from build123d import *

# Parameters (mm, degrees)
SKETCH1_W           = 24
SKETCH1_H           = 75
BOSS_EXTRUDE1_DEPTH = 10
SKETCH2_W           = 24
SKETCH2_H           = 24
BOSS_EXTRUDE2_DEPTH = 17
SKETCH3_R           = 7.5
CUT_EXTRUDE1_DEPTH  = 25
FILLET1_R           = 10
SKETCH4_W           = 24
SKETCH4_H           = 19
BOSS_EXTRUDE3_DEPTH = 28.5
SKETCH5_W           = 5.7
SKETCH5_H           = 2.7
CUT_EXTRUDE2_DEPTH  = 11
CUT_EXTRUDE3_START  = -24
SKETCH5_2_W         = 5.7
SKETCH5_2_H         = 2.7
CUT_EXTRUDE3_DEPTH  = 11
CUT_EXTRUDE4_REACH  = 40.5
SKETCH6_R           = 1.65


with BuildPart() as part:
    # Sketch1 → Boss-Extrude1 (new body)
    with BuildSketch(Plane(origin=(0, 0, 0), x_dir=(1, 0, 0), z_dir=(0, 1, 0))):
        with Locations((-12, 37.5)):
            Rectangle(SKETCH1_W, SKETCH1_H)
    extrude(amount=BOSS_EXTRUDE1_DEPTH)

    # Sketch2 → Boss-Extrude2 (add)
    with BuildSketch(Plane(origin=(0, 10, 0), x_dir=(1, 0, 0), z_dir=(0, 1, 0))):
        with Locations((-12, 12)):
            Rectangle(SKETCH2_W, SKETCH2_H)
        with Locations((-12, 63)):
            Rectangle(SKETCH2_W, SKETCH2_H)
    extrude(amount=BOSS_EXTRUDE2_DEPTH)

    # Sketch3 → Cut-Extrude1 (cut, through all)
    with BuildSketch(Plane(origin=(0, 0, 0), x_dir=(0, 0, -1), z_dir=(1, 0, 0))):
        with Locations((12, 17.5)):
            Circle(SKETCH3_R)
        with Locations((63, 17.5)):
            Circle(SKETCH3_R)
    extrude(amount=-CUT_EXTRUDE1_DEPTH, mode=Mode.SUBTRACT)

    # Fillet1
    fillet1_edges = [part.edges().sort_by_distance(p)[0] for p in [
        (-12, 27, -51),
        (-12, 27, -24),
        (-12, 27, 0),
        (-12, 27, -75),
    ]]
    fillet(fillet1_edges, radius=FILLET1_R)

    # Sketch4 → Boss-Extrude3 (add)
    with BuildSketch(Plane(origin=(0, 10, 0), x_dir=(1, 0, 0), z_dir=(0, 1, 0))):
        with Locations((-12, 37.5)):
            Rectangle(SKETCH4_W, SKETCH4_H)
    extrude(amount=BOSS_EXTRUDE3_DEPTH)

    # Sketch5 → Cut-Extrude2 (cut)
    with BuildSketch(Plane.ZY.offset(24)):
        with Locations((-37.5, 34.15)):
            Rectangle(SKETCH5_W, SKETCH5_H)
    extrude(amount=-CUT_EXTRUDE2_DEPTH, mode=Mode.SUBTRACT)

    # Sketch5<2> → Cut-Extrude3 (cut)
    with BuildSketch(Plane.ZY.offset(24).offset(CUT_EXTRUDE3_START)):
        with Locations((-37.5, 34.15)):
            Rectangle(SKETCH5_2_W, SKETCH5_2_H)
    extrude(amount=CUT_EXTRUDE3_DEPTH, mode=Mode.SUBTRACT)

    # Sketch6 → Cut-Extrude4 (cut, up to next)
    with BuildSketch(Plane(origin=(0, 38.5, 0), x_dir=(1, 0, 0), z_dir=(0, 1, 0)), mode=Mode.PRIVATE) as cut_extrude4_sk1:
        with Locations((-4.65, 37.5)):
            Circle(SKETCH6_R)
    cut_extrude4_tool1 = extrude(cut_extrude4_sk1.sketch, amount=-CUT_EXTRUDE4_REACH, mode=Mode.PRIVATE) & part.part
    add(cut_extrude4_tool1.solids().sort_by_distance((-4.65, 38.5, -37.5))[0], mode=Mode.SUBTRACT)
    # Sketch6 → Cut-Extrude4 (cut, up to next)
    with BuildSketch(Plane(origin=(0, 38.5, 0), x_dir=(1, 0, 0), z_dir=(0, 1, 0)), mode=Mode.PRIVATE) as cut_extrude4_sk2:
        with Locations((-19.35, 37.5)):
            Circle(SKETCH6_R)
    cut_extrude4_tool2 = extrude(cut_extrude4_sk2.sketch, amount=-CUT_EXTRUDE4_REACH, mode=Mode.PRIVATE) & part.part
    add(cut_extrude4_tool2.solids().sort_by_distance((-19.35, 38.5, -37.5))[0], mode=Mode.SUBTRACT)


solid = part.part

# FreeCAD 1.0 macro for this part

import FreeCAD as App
import Part
import Sketcher
from FreeCAD import Vector


def edges_at(feature, points):
    """Names of the edges that pass closest to the given points."""
    edges = feature.Shape.Edges
    near = lambda p: min(range(len(edges)), key=lambda i: edges[i].distToShape(Part.Vertex(*p))[0])
    return sorted({f"Edge{near(p) + 1}" for p in points})

doc = App.newDocument("Part")
body = doc.addObject("PartDesign::Body", "Body")

# Sketch on XZ plane
sketch1 = body.newObject("Sketcher::SketchObject", "Sketch")
sketch1.AttachmentSupport = (doc.getObject("XZ_Plane"), [""])
sketch1.MapMode = "FlatFace"
sketch1.addGeometry(Part.LineSegment(Vector(-24, -75, 0), Vector(-24, 0, 0)), False)
sketch1.addGeometry(Part.LineSegment(Vector(-24, 0, 0), Vector(0, 0, 0)), False)
sketch1.addGeometry(Part.LineSegment(Vector(0, 0, 0), Vector(0, -75, 0)), False)
sketch1.addGeometry(Part.LineSegment(Vector(0, -75, 0), Vector(-24, -75, 0)), False)
sketch1.addConstraint(Sketcher.Constraint("Coincident", 0, 2, 1, 1))
sketch1.addConstraint(Sketcher.Constraint("Coincident", 1, 2, 2, 1))
sketch1.addConstraint(Sketcher.Constraint("Coincident", 2, 2, 3, 1))
sketch1.addConstraint(Sketcher.Constraint("Coincident", 3, 2, 0, 1))
sketch1.addConstraint(Sketcher.Constraint("Vertical", 0))
sketch1.addConstraint(Sketcher.Constraint("Horizontal", 1))
sketch1.addConstraint(Sketcher.Constraint("Vertical", 2))
sketch1.addConstraint(Sketcher.Constraint("Horizontal", 3))
sketch1.addConstraint(Sketcher.Constraint("Coincident", 1, 2, -1, 1))
sketch1.addConstraint(Sketcher.Constraint("DistanceX", 1, 1, 1, 2, 24.0))
sketch1.addConstraint(Sketcher.Constraint("DistanceY", 0, 1, 0, 2, 75.0))
pad1 = body.newObject("PartDesign::Pad", "Pad")
pad1.Profile = sketch1
pad1.Length = 10
pad1.Reversed = True

# Sketch on XZ plane
sketch2 = body.newObject("Sketcher::SketchObject", "Sketch001")
sketch2.AttachmentSupport = (doc.getObject("XZ_Plane"), [""])
sketch2.MapMode = "FlatFace"
sketch2.AttachmentOffset = App.Placement(Vector(0, 0, -10), App.Rotation())
sketch2.addGeometry(Part.LineSegment(Vector(-24, -24, 0), Vector(-24, 0, 0)), False)
sketch2.addGeometry(Part.LineSegment(Vector(-24, 0, 0), Vector(0, 0, 0)), False)
sketch2.addGeometry(Part.LineSegment(Vector(0, 0, 0), Vector(0, -24, 0)), False)
sketch2.addGeometry(Part.LineSegment(Vector(0, -24, 0), Vector(-24, -24, 0)), False)
sketch2.addGeometry(Part.LineSegment(Vector(-24, -75, 0), Vector(-24, -51, 0)), False)
sketch2.addGeometry(Part.LineSegment(Vector(-24, -51, 0), Vector(0, -51, 0)), False)
sketch2.addGeometry(Part.LineSegment(Vector(0, -51, 0), Vector(0, -75, 0)), False)
sketch2.addGeometry(Part.LineSegment(Vector(0, -75, 0), Vector(-24, -75, 0)), False)
sketch2.addConstraint(Sketcher.Constraint("Coincident", 0, 2, 1, 1))
sketch2.addConstraint(Sketcher.Constraint("Coincident", 1, 2, 2, 1))
sketch2.addConstraint(Sketcher.Constraint("Coincident", 2, 2, 3, 1))
sketch2.addConstraint(Sketcher.Constraint("Coincident", 3, 2, 0, 1))
sketch2.addConstraint(Sketcher.Constraint("Coincident", 4, 2, 5, 1))
sketch2.addConstraint(Sketcher.Constraint("Coincident", 5, 2, 6, 1))
sketch2.addConstraint(Sketcher.Constraint("Coincident", 6, 2, 7, 1))
sketch2.addConstraint(Sketcher.Constraint("Coincident", 7, 2, 4, 1))
sketch2.addConstraint(Sketcher.Constraint("Vertical", 0))
sketch2.addConstraint(Sketcher.Constraint("Horizontal", 1))
sketch2.addConstraint(Sketcher.Constraint("Vertical", 2))
sketch2.addConstraint(Sketcher.Constraint("Horizontal", 3))
sketch2.addConstraint(Sketcher.Constraint("Vertical", 4))
sketch2.addConstraint(Sketcher.Constraint("Horizontal", 5))
sketch2.addConstraint(Sketcher.Constraint("Vertical", 6))
sketch2.addConstraint(Sketcher.Constraint("Horizontal", 7))
sketch2.addConstraint(Sketcher.Constraint("Coincident", 1, 2, -1, 1))
sketch2.addConstraint(Sketcher.Constraint("PointOnObject", 5, 2, -2))
sketch2.addConstraint(Sketcher.Constraint("Vertical", 3, 2, 4, 2))
sketch2.addConstraint(Sketcher.Constraint("Equal", 7, 0))
sketch2.addConstraint(Sketcher.Constraint("Equal", 2, 4))
sketch2.addConstraint(Sketcher.Constraint("DistanceX", 1, 1, 1, 2, 24.0))
sketch2.addConstraint(Sketcher.Constraint("DistanceY", 4, 2, -1, 1, 51.0))
pad2 = body.newObject("PartDesign::Pad", "Pad001")
pad2.Profile = sketch2
pad2.Length = 17
pad2.Reversed = True

# Sketch on YZ plane
sketch3 = body.newObject("Sketcher::SketchObject", "Sketch002")
sketch3.AttachmentSupport = (doc.getObject("YZ_Plane"), [""])
sketch3.MapMode = "FlatFace"
sketch3.addGeometry(Part.Circle(Vector(18, -12, 0), Vector(0, 0, 1), 8), False)
sketch3.addGeometry(Part.Circle(Vector(18, -63, 0), Vector(0, 0, 1), 8), False)
sketch3.addConstraint(Sketcher.Constraint("Equal", 0, 1))
sketch3.addConstraint(Sketcher.Constraint("Vertical", 0, 3, 1, 3))
sketch3.addConstraint(Sketcher.Constraint("Diameter", 0, 15.0))
sketch3.addConstraint(Sketcher.Constraint("DistanceY", 0, 3, -1, 1, 12.0))
sketch3.addConstraint(Sketcher.Constraint("DistanceY", 1, 3, -1, 1, 63.0))
sketch3.addConstraint(Sketcher.Constraint("DistanceX", -1, 1, 0, 3, 17.5))
pocket1 = body.newObject("PartDesign::Pocket", "Pocket")
pocket1.Profile = sketch3
pocket1.Type = "ThroughAll"
doc.recompute()

fillet = body.newObject("PartDesign::Fillet", "Fillet")
fillet.Base = (pocket1, edges_at(pocket1, [
    (-12, 27, -51),
    (-12, 27, -24),
    (-12, 27, 0),
    (-12, 27, -75),
]))
fillet.Radius = 10

# Sketch on XZ plane
sketch4 = body.newObject("Sketcher::SketchObject", "Sketch003")
sketch4.AttachmentSupport = (doc.getObject("XZ_Plane"), [""])
sketch4.MapMode = "FlatFace"
sketch4.AttachmentOffset = App.Placement(Vector(0, 0, -10), App.Rotation())
sketch4.addGeometry(Part.LineSegment(Vector(-24, -47, 0), Vector(-24, -28, 0)), False)
sketch4.addGeometry(Part.LineSegment(Vector(-24, -28, 0), Vector(0, -28, 0)), False)
sketch4.addGeometry(Part.LineSegment(Vector(0, -28, 0), Vector(0, -47, 0)), False)
sketch4.addGeometry(Part.LineSegment(Vector(0, -47, 0), Vector(-24, -47, 0)), False)
sketch4.addConstraint(Sketcher.Constraint("Coincident", 0, 2, 1, 1))
sketch4.addConstraint(Sketcher.Constraint("Coincident", 1, 2, 2, 1))
sketch4.addConstraint(Sketcher.Constraint("Coincident", 2, 2, 3, 1))
sketch4.addConstraint(Sketcher.Constraint("Coincident", 3, 2, 0, 1))
sketch4.addConstraint(Sketcher.Constraint("Vertical", 0))
sketch4.addConstraint(Sketcher.Constraint("Horizontal", 1))
sketch4.addConstraint(Sketcher.Constraint("Vertical", 2))
sketch4.addConstraint(Sketcher.Constraint("Horizontal", 3))
sketch4.addConstraint(Sketcher.Constraint("PointOnObject", 1, 2, -2))
sketch4.addConstraint(Sketcher.Constraint("DistanceX", 1, 1, 1, 2, 24.0))
sketch4.addConstraint(Sketcher.Constraint("DistanceY", 0, 1, 0, 2, 19.0))
sketch4.addConstraint(Sketcher.Constraint("DistanceY", 0, 2, -1, 1, 28.0))
pad3 = body.newObject("PartDesign::Pad", "Pad002")
pad3.Profile = sketch4
pad3.Length = 28.5
pad3.Reversed = True

# Sketch on YZ plane
sketch5 = body.newObject("Sketcher::SketchObject", "Sketch004")
sketch5.AttachmentSupport = (doc.getObject("YZ_Plane"), [""])
sketch5.MapMode = "FlatFace"
sketch5.AttachmentOffset = App.Placement(Vector(0, 0, -24), App.Rotation())
sketch5.addGeometry(Part.LineSegment(Vector(35.5, -40.4, 0), Vector(32.8, -40.4, 0)), False)
sketch5.addGeometry(Part.LineSegment(Vector(32.8, -40.4, 0), Vector(32.8, -34.6, 0)), False)
sketch5.addGeometry(Part.LineSegment(Vector(32.8, -34.6, 0), Vector(35.5, -34.6, 0)), False)
sketch5.addGeometry(Part.LineSegment(Vector(35.5, -34.6, 0), Vector(35.5, -40.4, 0)), False)
sketch5.addConstraint(Sketcher.Constraint("Coincident", 0, 2, 1, 1))
sketch5.addConstraint(Sketcher.Constraint("Coincident", 1, 2, 2, 1))
sketch5.addConstraint(Sketcher.Constraint("Coincident", 2, 2, 3, 1))
sketch5.addConstraint(Sketcher.Constraint("Coincident", 3, 2, 0, 1))
sketch5.addConstraint(Sketcher.Constraint("Horizontal", 0))
sketch5.addConstraint(Sketcher.Constraint("Vertical", 1))
sketch5.addConstraint(Sketcher.Constraint("Horizontal", 2))
sketch5.addConstraint(Sketcher.Constraint("Vertical", 3))
sketch5.addConstraint(Sketcher.Constraint("DistanceX", 0, 2, 0, 1, 2.7))
sketch5.addConstraint(Sketcher.Constraint("DistanceY", 1, 1, 1, 2, 5.7))
sketch5.addConstraint(Sketcher.Constraint("DistanceX", -1, 1, 0, 2, 32.8))
sketch5.addConstraint(Sketcher.Constraint("DistanceY", 0, 2, -1, 1, 40.35))
pocket2 = body.newObject("PartDesign::Pocket", "Pocket001")
pocket2.Profile = sketch5
pocket2.Length = 11
pocket2.Reversed = True

# Sketch on YZ plane
sketch6 = body.newObject("Sketcher::SketchObject", "Sketch005")
sketch6.AttachmentSupport = (doc.getObject("YZ_Plane"), [""])
sketch6.MapMode = "FlatFace"
sketch6.addGeometry(Part.LineSegment(Vector(35.5, -40.4, 0), Vector(32.8, -40.4, 0)), False)
sketch6.addGeometry(Part.LineSegment(Vector(32.8, -40.4, 0), Vector(32.8, -34.6, 0)), False)
sketch6.addGeometry(Part.LineSegment(Vector(32.8, -34.6, 0), Vector(35.5, -34.6, 0)), False)
sketch6.addGeometry(Part.LineSegment(Vector(35.5, -34.6, 0), Vector(35.5, -40.4, 0)), False)
sketch6.addConstraint(Sketcher.Constraint("Coincident", 0, 2, 1, 1))
sketch6.addConstraint(Sketcher.Constraint("Coincident", 1, 2, 2, 1))
sketch6.addConstraint(Sketcher.Constraint("Coincident", 2, 2, 3, 1))
sketch6.addConstraint(Sketcher.Constraint("Coincident", 3, 2, 0, 1))
sketch6.addConstraint(Sketcher.Constraint("Horizontal", 0))
sketch6.addConstraint(Sketcher.Constraint("Vertical", 1))
sketch6.addConstraint(Sketcher.Constraint("Horizontal", 2))
sketch6.addConstraint(Sketcher.Constraint("Vertical", 3))
sketch6.addConstraint(Sketcher.Constraint("DistanceX", 0, 2, 0, 1, 2.7))
sketch6.addConstraint(Sketcher.Constraint("DistanceY", 1, 1, 1, 2, 5.7))
sketch6.addConstraint(Sketcher.Constraint("DistanceX", -1, 1, 0, 2, 32.8))
sketch6.addConstraint(Sketcher.Constraint("DistanceY", 0, 2, -1, 1, 40.35))
pocket3 = body.newObject("PartDesign::Pocket", "Pocket002")
pocket3.Profile = sketch6
pocket3.Length = 11

# Sketch on XZ plane
sketch7 = body.newObject("Sketcher::SketchObject", "Sketch006")
sketch7.AttachmentSupport = (doc.getObject("XZ_Plane"), [""])
sketch7.MapMode = "FlatFace"
sketch7.AttachmentOffset = App.Placement(Vector(0, 0, -38.5), App.Rotation())
sketch7.addGeometry(Part.Circle(Vector(-4.7, -37.5, 0), Vector(0, 0, 1), 1.6), False)
sketch7.addConstraint(Sketcher.Constraint("Diameter", 0, 3.3))
sketch7.addConstraint(Sketcher.Constraint("DistanceY", 0, 3, -1, 1, 37.5))
sketch7.addConstraint(Sketcher.Constraint("DistanceX", 0, 3, -1, 1, 4.65))
pocket4 = body.newObject("PartDesign::Pocket", "Pocket003")
pocket4.Profile = sketch7
pocket4.Type = "UpToFirst"
pocket4.Reversed = True

# Sketch on XZ plane
sketch8 = body.newObject("Sketcher::SketchObject", "Sketch007")
sketch8.AttachmentSupport = (doc.getObject("XZ_Plane"), [""])
sketch8.MapMode = "FlatFace"
sketch8.AttachmentOffset = App.Placement(Vector(0, 0, -38.5), App.Rotation())
sketch8.addGeometry(Part.Circle(Vector(-19.4, -37.5, 0), Vector(0, 0, 1), 1.6), False)
sketch8.addConstraint(Sketcher.Constraint("Diameter", 0, 3.3))
sketch8.addConstraint(Sketcher.Constraint("DistanceY", 0, 3, -1, 1, 37.5))
sketch8.addConstraint(Sketcher.Constraint("DistanceX", 0, 3, -1, 1, 19.35))
pocket5 = body.newObject("PartDesign::Pocket", "Pocket004")
pocket5.Profile = sketch8
pocket5.Type = "UpToFirst"
pocket5.Reversed = True

doc.recompute()
